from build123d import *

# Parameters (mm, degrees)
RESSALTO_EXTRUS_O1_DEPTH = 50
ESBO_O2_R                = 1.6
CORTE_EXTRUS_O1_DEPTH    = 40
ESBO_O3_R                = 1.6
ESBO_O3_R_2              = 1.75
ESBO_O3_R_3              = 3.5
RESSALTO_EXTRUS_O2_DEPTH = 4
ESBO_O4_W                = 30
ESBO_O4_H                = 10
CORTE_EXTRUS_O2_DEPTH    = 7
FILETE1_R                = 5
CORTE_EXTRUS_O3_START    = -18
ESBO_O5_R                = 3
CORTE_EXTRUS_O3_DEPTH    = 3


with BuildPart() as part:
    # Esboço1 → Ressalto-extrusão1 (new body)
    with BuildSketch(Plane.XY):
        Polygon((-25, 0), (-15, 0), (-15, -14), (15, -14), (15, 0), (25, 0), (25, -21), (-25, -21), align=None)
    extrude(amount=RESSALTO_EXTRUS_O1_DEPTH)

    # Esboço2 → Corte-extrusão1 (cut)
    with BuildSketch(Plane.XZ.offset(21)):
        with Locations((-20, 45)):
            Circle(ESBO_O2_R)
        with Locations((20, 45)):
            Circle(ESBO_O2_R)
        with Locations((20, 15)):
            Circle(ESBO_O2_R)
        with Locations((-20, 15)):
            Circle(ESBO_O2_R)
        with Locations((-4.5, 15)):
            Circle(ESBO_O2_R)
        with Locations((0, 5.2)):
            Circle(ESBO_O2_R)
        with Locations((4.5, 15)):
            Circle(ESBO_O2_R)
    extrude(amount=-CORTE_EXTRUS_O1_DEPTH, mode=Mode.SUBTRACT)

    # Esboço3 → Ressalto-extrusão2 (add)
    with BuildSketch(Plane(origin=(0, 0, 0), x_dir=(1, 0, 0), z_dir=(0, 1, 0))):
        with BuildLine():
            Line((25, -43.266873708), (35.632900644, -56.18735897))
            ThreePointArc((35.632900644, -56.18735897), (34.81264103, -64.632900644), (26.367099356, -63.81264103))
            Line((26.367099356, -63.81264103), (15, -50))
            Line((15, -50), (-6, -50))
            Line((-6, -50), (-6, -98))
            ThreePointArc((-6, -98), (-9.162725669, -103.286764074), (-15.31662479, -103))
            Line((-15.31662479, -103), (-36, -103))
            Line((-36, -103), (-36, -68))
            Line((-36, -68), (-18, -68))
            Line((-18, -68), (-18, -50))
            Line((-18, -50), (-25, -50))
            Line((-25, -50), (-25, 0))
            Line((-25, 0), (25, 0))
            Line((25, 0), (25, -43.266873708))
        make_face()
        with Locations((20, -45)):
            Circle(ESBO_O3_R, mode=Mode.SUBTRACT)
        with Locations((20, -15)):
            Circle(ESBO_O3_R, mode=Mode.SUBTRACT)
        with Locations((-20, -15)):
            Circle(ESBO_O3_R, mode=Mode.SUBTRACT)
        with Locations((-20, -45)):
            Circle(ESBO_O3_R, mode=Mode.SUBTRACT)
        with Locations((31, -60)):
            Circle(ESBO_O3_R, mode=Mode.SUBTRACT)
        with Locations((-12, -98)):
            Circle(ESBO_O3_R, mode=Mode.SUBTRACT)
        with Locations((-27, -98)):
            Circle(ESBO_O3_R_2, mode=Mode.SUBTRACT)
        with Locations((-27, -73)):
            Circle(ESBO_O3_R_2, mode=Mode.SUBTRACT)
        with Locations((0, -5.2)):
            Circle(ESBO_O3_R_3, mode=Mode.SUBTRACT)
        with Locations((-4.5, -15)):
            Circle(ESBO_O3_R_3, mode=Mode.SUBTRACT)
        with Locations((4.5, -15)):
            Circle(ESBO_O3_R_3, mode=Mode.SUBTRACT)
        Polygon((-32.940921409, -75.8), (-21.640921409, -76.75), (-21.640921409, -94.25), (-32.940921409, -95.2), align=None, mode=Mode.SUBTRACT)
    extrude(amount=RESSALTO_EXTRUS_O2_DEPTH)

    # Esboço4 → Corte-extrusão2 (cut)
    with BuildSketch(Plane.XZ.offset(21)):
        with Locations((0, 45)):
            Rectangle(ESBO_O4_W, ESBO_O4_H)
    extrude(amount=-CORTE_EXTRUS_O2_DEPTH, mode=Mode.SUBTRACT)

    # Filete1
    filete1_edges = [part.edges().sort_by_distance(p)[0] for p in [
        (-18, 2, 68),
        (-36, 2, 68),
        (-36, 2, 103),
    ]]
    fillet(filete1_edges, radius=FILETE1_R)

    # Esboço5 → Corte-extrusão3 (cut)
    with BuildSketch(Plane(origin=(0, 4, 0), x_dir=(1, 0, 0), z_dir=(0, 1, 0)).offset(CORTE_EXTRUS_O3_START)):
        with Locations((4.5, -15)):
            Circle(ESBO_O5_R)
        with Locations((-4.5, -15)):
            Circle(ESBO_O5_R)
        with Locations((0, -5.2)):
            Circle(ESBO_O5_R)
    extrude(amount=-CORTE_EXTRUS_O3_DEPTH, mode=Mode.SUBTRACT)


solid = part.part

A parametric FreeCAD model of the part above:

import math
import FreeCAD as App
import Part
import Sketcher
Q = App.Units.Quantity


def edges_at(feature, points):
    """Names of the edges that pass closest to the given points."""
    edges = feature.Shape.Edges
    near = lambda p: min(range(len(edges)), key=lambda i: edges[i].distToShape(Part.Vertex(*p))[0])
    return sorted({f"Edge{near(p) + 1}" for p in points})


def add_polygon(sketch, points):
    """Adds a closed chain of lines whose ends are joined by coincident constraints."""
    first, n = sketch.GeometryCount, len(points)
    for a, b in zip(points, points[1:] + points[:1]):
        sketch.addGeometry(Part.LineSegment(App.Vector(*a, 0), App.Vector(*b, 0)), False)
    for i in range(n):
        sketch.addConstraint(Sketcher.Constraint("Coincident", first + i, 2, first + (i + 1) % n, 1))

doc = App.newDocument("Part")
body = doc.addObject("PartDesign::Body", "Body")

sketch1 = doc.addObject("Sketcher::SketchObject", "Sketch")
body.addObject(sketch1)
sketch1.AttachmentSupport = (doc.XY_Plane, [""])
sketch1.MapMode = "FlatFace"
add_polygon(sketch1, [(-15, 0), (-25, 0), (-25, -21), (25, -21), (25, 0), (15, 0), (15, -14), (-15, -14)])
sketch1.addConstraint([
    Sketcher.Constraint("Horizontal", 0),
    Sketcher.Constraint("Vertical", 1),
    Sketcher.Constraint("Horizontal", 2),
    Sketcher.Constraint("Vertical", 3),
    Sketcher.Constraint("Horizontal", 4),
    Sketcher.Constraint("Vertical", 5),
    Sketcher.Constraint("Horizontal", 6),
    Sketcher.Constraint("Vertical", 7),
    Sketcher.Constraint("Symmetric", 0, 2, 3, 2, -1, 1),
    Sketcher.Constraint("Symmetric", 4, 2, 7, 2, -2),
    Sketcher.Constraint("DistanceX", 0, 2, 0, 1, Q("10 mm")),
    Sketcher.Constraint("DistanceX", 2, 1, 2, 2, Q("50 mm")),
    Sketcher.Constraint("DistanceY", 1, 2, 1, 1, Q("21 mm")),
    Sketcher.Constraint("DistanceY", 5, 2, 5, 1, Q("14 mm")),
])
pad1 = doc.addObject("PartDesign::Pad", "Pad")
body.addObject(pad1)
pad1.Profile = sketch1
pad1.Length = 50

sketch2 = doc.addObject("Sketcher::SketchObject", "Sketch001")
body.addObject(sketch2)
sketch2.AttachmentSupport = (doc.XZ_Plane, [""])
sketch2.MapMode = "FlatFace"
sketch2.AttachmentOffset = App.Placement(App.Vector(0, 0, 21), App.Rotation())
sketch2.addGeometry([
    Part.Circle(App.Vector(-20, 45, 0), App.Vector(0, 0, 1), 1.6),
    Part.Circle(App.Vector(20, 45, 0), App.Vector(0, 0, 1), 1.6),
    Part.Circle(App.Vector(20, 15, 0), App.Vector(0, 0, 1), 1.6),
    Part.Circle(App.Vector(-20, 15, 0), App.Vector(0, 0, 1), 1.6),
    Part.Circle(App.Vector(-4.5, 15, 0), App.Vector(0, 0, 1), 1.6),
    Part.Circle(App.Vector(0, 5.2, 0), App.Vector(0, 0, 1), 1.6),
    Part.Circle(App.Vector(4.5, 15, 0), App.Vector(0, 0, 1), 1.6),
], False)
sketch2.addConstraint([
    Sketcher.Constraint("Equal", 0, 1),
    Sketcher.Constraint("Equal", 1, 2),
    Sketcher.Constraint("Equal", 2, 3),
    Sketcher.Constraint("Equal", 3, 4),
    Sketcher.Constraint("Equal", 4, 5),
    Sketcher.Constraint("Equal", 5, 6),
    Sketcher.Constraint("Symmetric", 0, 3, 1, 3, -2),
    Sketcher.Constraint("Symmetric", 2, 3, 3, 3, -2),
    Sketcher.Constraint("Symmetric", 4, 3, 6, 3, -2),
    Sketcher.Constraint("PointOnObject", 5, 3, -2),
    Sketcher.Constraint("Horizontal", 3, 3, 4, 3),
    Sketcher.Constraint("Vertical", 1, 3, 2, 3),
    Sketcher.Constraint("Diameter", 0, Q("3.2 mm")),
    Sketcher.Constraint("DistanceX", 0, 3, -1, 1, Q("20 mm")),
    Sketcher.Constraint("DistanceY", -1, 1, 0, 3, Q("45 mm")),
    Sketcher.Constraint("DistanceY", -1, 1, 2, 3, Q("15 mm")),
    Sketcher.Constraint("DistanceX", 4, 3, 6, 3, Q("9 mm")),
    Sketcher.Constraint("DistanceY", -1, 1, 5, 3, Q("5.2 mm")),
])
pocket1 = doc.addObject("PartDesign::Pocket", "Pocket")
body.addObject(pocket1)
pocket1.Profile = sketch2
pocket1.Length = 40

sketch3 = doc.addObject("Sketcher::SketchObject", "Sketch002")
body.addObject(sketch3)
sketch3.AttachmentSupport = (doc.XZ_Plane, [""])
sketch3.MapMode = "FlatFace"
sketch3.addGeometry(Part.LineSegment(App.Vector(35.632901, 56.187359, 0), App.Vector(25, 43.266874, 0)), False)
sketch3.addGeometry(Part.LineSegment(App.Vector(25, 43.266874, 0), App.Vector(25, 0, 0)), False)
sketch3.addGeometry(Part.LineSegment(App.Vector(25, 0, 0), App.Vector(-25, 0, 0)), False)
sketch3.addGeometry(Part.LineSegment(App.Vector(-25, 0, 0), App.Vector(-25, 50, 0)), False)
sketch3.addGeometry(Part.LineSegment(App.Vector(-25, 50, 0), App.Vector(-18, 50, 0)), False)
sketch3.addGeometry(Part.LineSegment(App.Vector(-18, 50, 0), App.Vector(-18, 68, 0)), False)
sketch3.addGeometry(Part.LineSegment(App.Vector(-18, 68, 0), App.Vector(-36, 68, 0)), False)
sketch3.addGeometry(Part.LineSegment(App.Vector(-36, 68, 0), App.Vector(-36, 103, 0)), False)
sketch3.addGeometry(Part.LineSegment(App.Vector(-36, 103, 0), App.Vector(-15.316625, 103, 0)), False)
sketch3.addGeometry(Part.ArcOfCircle(Part.Circle(App.Vector(-12, 98, 0), App.Vector(0, 0, 1), 6), math.radians(0), math.radians(123.55731)), False)
sketch3.addGeometry(Part.LineSegment(App.Vector(-6, 98, 0), App.Vector(-6, 50, 0)), False)
sketch3.addGeometry(Part.LineSegment(App.Vector(-6, 50, 0), App.Vector(15, 50, 0)), False)
sketch3.addGeometry(Part.LineSegment(App.Vector(15, 50, 0), App.Vector(26.367099, 63.812641, 0)), False)
sketch3.addGeometry(Part.ArcOfCircle(Part.Circle(App.Vector(31, 60, 0), App.Vector(0, 0, 1), 6), math.radians(-39.452639), math.radians(140.547361)), False)
sketch3.addGeometry(Part.Circle(App.Vector(31, 60, 0), App.Vector(0, 0, 1), 1.6), False)
sketch3.addGeometry(Part.Circle(App.Vector(-12, 98, 0), App.Vector(0, 0, 1), 1.6), False)
sketch3.addGeometry(Part.Circle(App.Vector(-27, 98, 0), App.Vector(0, 0, 1), 1.75), False)
add_polygon(sketch3, [(-32.940921, 75.8), (-21.640921, 76.75), (-21.640921, 94.25), (-32.940921, 95.2)])
sketch3.addGeometry(Part.Circle(App.Vector(-27, 73, 0), App.Vector(0, 0, 1), 1.75), False)
sketch3.addGeometry(Part.Circle(App.Vector(20, 45, 0), App.Vector(0, 0, 1), 1.6), False)
sketch3.addGeometry(Part.Circle(App.Vector(20, 15, 0), App.Vector(0, 0, 1), 1.6), False)
sketch3.addGeometry(Part.Circle(App.Vector(4.5, 15, 0), App.Vector(0, 0, 1), 3.5), False)
sketch3.addGeometry(Part.Circle(App.Vector(0, 5.2, 0), App.Vector(0, 0, 1), 3.5), False)
sketch3.addGeometry(Part.Circle(App.Vector(-20, 45, 0), App.Vector(0, 0, 1), 1.6), False)
sketch3.addGeometry(Part.Circle(App.Vector(-4.5, 15, 0), App.Vector(0, 0, 1), 3.5), False)
sketch3.addGeometry(Part.Circle(App.Vector(-20, 15, 0), App.Vector(0, 0, 1), 1.6), False)
sketch3.addConstraint([
    Sketcher.Constraint("Coincident", 0, 2, 1, 1),
    Sketcher.Constraint("Coincident", 1, 2, 2, 1),
    Sketcher.Constraint("Coincident", 2, 2, 3, 1),
    Sketcher.Constraint("Coincident", 3, 2, 4, 1),
    Sketcher.Constraint("Coincident", 4, 2, 5, 1),
    Sketcher.Constraint("Coincident", 5, 2, 6, 1),
    Sketcher.Constraint("Coincident", 6, 2, 7, 1),
    Sketcher.Constraint("Coincident", 7, 2, 8, 1),
    Sketcher.Constraint("Coincident", 8, 2, 9, 2),
    Sketcher.Constraint("Tangent", 9, 1, 10, 1),
    Sketcher.Constraint("Coincident", 10, 2, 11, 1),
    Sketcher.Constraint("Coincident", 11, 2, 12, 1),
    Sketcher.Constraint("Tangent", 12, 2, 13, 2),
    Sketcher.Constraint("Tangent", 13, 1, 0, 1),
    Sketcher.Constraint("Vertical", 1),
    Sketcher.Constraint("Horizontal", 2),
    Sketcher.Constraint("Vertical", 3),
    Sketcher.Constraint("Horizontal", 4),
    Sketcher.Constraint("Vertical", 5),
    Sketcher.Constraint("Horizontal", 6),
    Sketcher.Constraint("Vertical", 7),
    Sketcher.Constraint("Horizontal", 8),
    Sketcher.Constraint("Vertical", 10),
    Sketcher.Constraint("Horizontal", 11),
    Sketcher.Constraint("Vertical", 18),
    Sketcher.Constraint("Vertical", 20),
    Sketcher.Constraint("Coincident", 14, 3, 13, 3),
    Sketcher.Constraint("Coincident", 15, 3, 9, 3),
    Sketcher.Constraint("Equal", 9, 13),
    Sketcher.Constraint("Equal", 14, 15),
    Sketcher.Constraint("Equal", 16, 21),
    Sketcher.Constraint("Equal", 15, 22),
    Sketcher.Constraint("Equal", 22, 23),
    Sketcher.Constraint("Equal", 24, 25),
    Sketcher.Constraint("Equal", 23, 26),
    Sketcher.Constraint("Equal", 25, 27),
    Sketcher.Constraint("Equal", 26, 28),
    Sketcher.Constraint("Symmetric", 1, 2, 2, 2, -1, 1),
    Sketcher.Constraint("Symmetric", 22, 3, 26, 3, -2),
    Sketcher.Constraint("Symmetric", 24, 3, 27, 3, -2),
    Sketcher.Constraint("Symmetric", 23, 3, 28, 3, -2),
    Sketcher.Constraint("PointOnObject", 25, 3, -2),
    Sketcher.Constraint("Parallel", 0, 12),
    Sketcher.Constraint("Horizontal", 15, 3, 16, 3),
    Sketcher.Constraint("Horizontal", 23, 3, 24, 3),
    Sketcher.Constraint("Horizontal", 4, 2, 10, 2),
    Sketcher.Constraint("Vertical", 16, 3, 21, 3),
    Sketcher.Constraint("Vertical", 22, 3, 23, 3),
    Sketcher.Constraint("Equal", 2, 3),
    Sketcher.Constraint("Equal", 6, 5),
    Sketcher.Constraint("Equal", 17, 19),
    Sketcher.Constraint("Diameter", 24, Q("7 mm")),
    Sketcher.Constraint("Radius", 9, Q("6 mm")),
    Sketcher.Constraint("Diameter", 14, Q("3.2 mm")),
    Sketcher.Constraint("Diameter", 16, Q("3.5 mm")),
    Sketcher.Constraint("DistanceX", 2, 2, 2, 1, Q("50 mm")),
    Sketcher.Constraint("DistanceX", 4, 1, 4, 2, Q("7 mm")),
    Sketcher.Constraint("DistanceX", 6, 2, 6, 1, Q("18 mm")),
    Sketcher.Constraint("DistanceX", 11, 1, 11, 2, Q("21 mm")),
    Sketcher.Constraint("DistanceY", 7, 1, 7, 2, Q("35 mm")),
    Sketcher.Constraint("DistanceY", 10, 2, 10, 1, Q("48 mm")),
    Sketcher.Constraint("DistanceY", 18, 1, 18, 2, Q("17.5 mm")),
    Sketcher.Constraint("DistanceY", 20, 2, 20, 1, Q("19.4 mm")),
    Sketcher.Constraint("DistanceX", 9, 3, -1, 1, Q("12 mm")),
    Sketcher.Constraint("DistanceX", -1, 1, 13, 3, Q("31 mm")),
    Sketcher.Constraint("DistanceY", -1, 1, 13, 3, Q("60 mm")),
    Sketcher.Constraint("DistanceX", 16, 3, -1, 1, Q("27 mm")),
    Sketcher.Constraint("DistanceY", -1, 1, 21, 3, Q("73 mm")),
    Sketcher.Constraint("DistanceX", -1, 1, 22, 3, Q("20 mm")),
    Sketcher.Constraint("DistanceY", -1, 1, 22, 3, Q("45 mm")),
    Sketcher.Constraint("DistanceY", -1, 1, 23, 3, Q("15 mm")),
    Sketcher.Constraint("DistanceX", 27, 3, 24, 3, Q("9 mm")),
    Sketcher.Constraint("DistanceY", -1, 1, 25, 3, Q("5.2 mm")),
    Sketcher.Constraint("DistanceY", -1, 1, 19, 2, Q("95.2 mm")),
    Sketcher.Constraint("DistanceX", 19, 2, 18, 2, Q("11.3 mm")),
    Sketcher.Constraint("DistanceX", 17, 2, -1, 1, Q("21.640921 mm")),
])
pad2 = doc.addObject("PartDesign::Pad", "Pad001")
body.addObject(pad2)
pad2.Profile = sketch3
pad2.Length = 4
pad2.Reversed = True

sketch4 = doc.addObject("Sketcher::SketchObject", "Sketch003")
body.addObject(sketch4)
sketch4.AttachmentSupport = (doc.XZ_Plane, [""])
sketch4.MapMode = "FlatFace"
sketch4.AttachmentOffset = App.Placement(App.Vector(0, 0, 21), App.Rotation())
add_polygon(sketch4, [(-15, 50), (-15, 40), (15, 40), (15, 50)])
sketch4.addConstraint([
    Sketcher.Constraint("Vertical", 0),
    Sketcher.Constraint("Horizontal", 1),
    Sketcher.Constraint("Vertical", 2),
    Sketcher.Constraint("Horizontal", 3),
    Sketcher.Constraint("DistanceX", 1, 1, 1, 2, Q("30 mm")),
    Sketcher.Constraint("DistanceY", 0, 2, 0, 1, Q("10 mm")),
    Sketcher.Constraint("DistanceX", 0, 2, -1, 1, Q("15 mm")),
    Sketcher.Constraint("DistanceY", -1, 1, 0, 2, Q("40 mm")),
])
pocket2 = doc.addObject("PartDesign::Pocket", "Pocket001")
body.addObject(pocket2)
pocket2.Profile = sketch4
pocket2.Length = 7
doc.recompute()

fillet = doc.addObject("PartDesign::Fillet", "Fillet")
body.addObject(fillet)
fillet.Base = (pocket2, edges_at(pocket2, [(-18, 2, 68), (-36, 2, 68), (-36, 2, 103)]))
fillet.Radius = 5

sketch5 = doc.addObject("Sketcher::SketchObject", "Sketch004")
body.addObject(sketch5)
sketch5.AttachmentSupport = (doc.XZ_Plane, [""])
sketch5.MapMode = "FlatFace"
sketch5.AttachmentOffset = App.Placement(App.Vector(0, 0, 14), App.Rotation())
sketch5.addGeometry([
    Part.Circle(App.Vector(4.5, 15, 0), App.Vector(0, 0, 1), 3),
    Part.Circle(App.Vector(-4.5, 15, 0), App.Vector(0, 0, 1), 3),
    Part.Circle(App.Vector(0, 5.2, 0), App.Vector(0, 0, 1), 3),
], False)
sketch5.addConstraint([
    Sketcher.Constraint("Equal", 0, 1),
    Sketcher.Constraint("Equal", 1, 2),
    Sketcher.Constraint("Symmetric", 0, 3, 1, 3, -2),
    Sketcher.Constraint("PointOnObject", 2, 3, -2),
    Sketcher.Constraint("Diameter", 0, Q("6 mm")),
    Sketcher.Constraint("DistanceY", -1, 1, 0, 3, Q("15 mm")),
    Sketcher.Constraint("DistanceX", 1, 3, 0, 3, Q("9 mm")),
    Sketcher.Constraint("DistanceY", -1, 1, 2, 3, Q("5.2 mm")),
])
pocket3 = doc.addObject("PartDesign::Pocket", "Pocket002")
body.addObject(pocket3)
pocket3.Profile = sketch5
pocket3.Length = 3
pocket3.Reversed = True

doc.recompute()
